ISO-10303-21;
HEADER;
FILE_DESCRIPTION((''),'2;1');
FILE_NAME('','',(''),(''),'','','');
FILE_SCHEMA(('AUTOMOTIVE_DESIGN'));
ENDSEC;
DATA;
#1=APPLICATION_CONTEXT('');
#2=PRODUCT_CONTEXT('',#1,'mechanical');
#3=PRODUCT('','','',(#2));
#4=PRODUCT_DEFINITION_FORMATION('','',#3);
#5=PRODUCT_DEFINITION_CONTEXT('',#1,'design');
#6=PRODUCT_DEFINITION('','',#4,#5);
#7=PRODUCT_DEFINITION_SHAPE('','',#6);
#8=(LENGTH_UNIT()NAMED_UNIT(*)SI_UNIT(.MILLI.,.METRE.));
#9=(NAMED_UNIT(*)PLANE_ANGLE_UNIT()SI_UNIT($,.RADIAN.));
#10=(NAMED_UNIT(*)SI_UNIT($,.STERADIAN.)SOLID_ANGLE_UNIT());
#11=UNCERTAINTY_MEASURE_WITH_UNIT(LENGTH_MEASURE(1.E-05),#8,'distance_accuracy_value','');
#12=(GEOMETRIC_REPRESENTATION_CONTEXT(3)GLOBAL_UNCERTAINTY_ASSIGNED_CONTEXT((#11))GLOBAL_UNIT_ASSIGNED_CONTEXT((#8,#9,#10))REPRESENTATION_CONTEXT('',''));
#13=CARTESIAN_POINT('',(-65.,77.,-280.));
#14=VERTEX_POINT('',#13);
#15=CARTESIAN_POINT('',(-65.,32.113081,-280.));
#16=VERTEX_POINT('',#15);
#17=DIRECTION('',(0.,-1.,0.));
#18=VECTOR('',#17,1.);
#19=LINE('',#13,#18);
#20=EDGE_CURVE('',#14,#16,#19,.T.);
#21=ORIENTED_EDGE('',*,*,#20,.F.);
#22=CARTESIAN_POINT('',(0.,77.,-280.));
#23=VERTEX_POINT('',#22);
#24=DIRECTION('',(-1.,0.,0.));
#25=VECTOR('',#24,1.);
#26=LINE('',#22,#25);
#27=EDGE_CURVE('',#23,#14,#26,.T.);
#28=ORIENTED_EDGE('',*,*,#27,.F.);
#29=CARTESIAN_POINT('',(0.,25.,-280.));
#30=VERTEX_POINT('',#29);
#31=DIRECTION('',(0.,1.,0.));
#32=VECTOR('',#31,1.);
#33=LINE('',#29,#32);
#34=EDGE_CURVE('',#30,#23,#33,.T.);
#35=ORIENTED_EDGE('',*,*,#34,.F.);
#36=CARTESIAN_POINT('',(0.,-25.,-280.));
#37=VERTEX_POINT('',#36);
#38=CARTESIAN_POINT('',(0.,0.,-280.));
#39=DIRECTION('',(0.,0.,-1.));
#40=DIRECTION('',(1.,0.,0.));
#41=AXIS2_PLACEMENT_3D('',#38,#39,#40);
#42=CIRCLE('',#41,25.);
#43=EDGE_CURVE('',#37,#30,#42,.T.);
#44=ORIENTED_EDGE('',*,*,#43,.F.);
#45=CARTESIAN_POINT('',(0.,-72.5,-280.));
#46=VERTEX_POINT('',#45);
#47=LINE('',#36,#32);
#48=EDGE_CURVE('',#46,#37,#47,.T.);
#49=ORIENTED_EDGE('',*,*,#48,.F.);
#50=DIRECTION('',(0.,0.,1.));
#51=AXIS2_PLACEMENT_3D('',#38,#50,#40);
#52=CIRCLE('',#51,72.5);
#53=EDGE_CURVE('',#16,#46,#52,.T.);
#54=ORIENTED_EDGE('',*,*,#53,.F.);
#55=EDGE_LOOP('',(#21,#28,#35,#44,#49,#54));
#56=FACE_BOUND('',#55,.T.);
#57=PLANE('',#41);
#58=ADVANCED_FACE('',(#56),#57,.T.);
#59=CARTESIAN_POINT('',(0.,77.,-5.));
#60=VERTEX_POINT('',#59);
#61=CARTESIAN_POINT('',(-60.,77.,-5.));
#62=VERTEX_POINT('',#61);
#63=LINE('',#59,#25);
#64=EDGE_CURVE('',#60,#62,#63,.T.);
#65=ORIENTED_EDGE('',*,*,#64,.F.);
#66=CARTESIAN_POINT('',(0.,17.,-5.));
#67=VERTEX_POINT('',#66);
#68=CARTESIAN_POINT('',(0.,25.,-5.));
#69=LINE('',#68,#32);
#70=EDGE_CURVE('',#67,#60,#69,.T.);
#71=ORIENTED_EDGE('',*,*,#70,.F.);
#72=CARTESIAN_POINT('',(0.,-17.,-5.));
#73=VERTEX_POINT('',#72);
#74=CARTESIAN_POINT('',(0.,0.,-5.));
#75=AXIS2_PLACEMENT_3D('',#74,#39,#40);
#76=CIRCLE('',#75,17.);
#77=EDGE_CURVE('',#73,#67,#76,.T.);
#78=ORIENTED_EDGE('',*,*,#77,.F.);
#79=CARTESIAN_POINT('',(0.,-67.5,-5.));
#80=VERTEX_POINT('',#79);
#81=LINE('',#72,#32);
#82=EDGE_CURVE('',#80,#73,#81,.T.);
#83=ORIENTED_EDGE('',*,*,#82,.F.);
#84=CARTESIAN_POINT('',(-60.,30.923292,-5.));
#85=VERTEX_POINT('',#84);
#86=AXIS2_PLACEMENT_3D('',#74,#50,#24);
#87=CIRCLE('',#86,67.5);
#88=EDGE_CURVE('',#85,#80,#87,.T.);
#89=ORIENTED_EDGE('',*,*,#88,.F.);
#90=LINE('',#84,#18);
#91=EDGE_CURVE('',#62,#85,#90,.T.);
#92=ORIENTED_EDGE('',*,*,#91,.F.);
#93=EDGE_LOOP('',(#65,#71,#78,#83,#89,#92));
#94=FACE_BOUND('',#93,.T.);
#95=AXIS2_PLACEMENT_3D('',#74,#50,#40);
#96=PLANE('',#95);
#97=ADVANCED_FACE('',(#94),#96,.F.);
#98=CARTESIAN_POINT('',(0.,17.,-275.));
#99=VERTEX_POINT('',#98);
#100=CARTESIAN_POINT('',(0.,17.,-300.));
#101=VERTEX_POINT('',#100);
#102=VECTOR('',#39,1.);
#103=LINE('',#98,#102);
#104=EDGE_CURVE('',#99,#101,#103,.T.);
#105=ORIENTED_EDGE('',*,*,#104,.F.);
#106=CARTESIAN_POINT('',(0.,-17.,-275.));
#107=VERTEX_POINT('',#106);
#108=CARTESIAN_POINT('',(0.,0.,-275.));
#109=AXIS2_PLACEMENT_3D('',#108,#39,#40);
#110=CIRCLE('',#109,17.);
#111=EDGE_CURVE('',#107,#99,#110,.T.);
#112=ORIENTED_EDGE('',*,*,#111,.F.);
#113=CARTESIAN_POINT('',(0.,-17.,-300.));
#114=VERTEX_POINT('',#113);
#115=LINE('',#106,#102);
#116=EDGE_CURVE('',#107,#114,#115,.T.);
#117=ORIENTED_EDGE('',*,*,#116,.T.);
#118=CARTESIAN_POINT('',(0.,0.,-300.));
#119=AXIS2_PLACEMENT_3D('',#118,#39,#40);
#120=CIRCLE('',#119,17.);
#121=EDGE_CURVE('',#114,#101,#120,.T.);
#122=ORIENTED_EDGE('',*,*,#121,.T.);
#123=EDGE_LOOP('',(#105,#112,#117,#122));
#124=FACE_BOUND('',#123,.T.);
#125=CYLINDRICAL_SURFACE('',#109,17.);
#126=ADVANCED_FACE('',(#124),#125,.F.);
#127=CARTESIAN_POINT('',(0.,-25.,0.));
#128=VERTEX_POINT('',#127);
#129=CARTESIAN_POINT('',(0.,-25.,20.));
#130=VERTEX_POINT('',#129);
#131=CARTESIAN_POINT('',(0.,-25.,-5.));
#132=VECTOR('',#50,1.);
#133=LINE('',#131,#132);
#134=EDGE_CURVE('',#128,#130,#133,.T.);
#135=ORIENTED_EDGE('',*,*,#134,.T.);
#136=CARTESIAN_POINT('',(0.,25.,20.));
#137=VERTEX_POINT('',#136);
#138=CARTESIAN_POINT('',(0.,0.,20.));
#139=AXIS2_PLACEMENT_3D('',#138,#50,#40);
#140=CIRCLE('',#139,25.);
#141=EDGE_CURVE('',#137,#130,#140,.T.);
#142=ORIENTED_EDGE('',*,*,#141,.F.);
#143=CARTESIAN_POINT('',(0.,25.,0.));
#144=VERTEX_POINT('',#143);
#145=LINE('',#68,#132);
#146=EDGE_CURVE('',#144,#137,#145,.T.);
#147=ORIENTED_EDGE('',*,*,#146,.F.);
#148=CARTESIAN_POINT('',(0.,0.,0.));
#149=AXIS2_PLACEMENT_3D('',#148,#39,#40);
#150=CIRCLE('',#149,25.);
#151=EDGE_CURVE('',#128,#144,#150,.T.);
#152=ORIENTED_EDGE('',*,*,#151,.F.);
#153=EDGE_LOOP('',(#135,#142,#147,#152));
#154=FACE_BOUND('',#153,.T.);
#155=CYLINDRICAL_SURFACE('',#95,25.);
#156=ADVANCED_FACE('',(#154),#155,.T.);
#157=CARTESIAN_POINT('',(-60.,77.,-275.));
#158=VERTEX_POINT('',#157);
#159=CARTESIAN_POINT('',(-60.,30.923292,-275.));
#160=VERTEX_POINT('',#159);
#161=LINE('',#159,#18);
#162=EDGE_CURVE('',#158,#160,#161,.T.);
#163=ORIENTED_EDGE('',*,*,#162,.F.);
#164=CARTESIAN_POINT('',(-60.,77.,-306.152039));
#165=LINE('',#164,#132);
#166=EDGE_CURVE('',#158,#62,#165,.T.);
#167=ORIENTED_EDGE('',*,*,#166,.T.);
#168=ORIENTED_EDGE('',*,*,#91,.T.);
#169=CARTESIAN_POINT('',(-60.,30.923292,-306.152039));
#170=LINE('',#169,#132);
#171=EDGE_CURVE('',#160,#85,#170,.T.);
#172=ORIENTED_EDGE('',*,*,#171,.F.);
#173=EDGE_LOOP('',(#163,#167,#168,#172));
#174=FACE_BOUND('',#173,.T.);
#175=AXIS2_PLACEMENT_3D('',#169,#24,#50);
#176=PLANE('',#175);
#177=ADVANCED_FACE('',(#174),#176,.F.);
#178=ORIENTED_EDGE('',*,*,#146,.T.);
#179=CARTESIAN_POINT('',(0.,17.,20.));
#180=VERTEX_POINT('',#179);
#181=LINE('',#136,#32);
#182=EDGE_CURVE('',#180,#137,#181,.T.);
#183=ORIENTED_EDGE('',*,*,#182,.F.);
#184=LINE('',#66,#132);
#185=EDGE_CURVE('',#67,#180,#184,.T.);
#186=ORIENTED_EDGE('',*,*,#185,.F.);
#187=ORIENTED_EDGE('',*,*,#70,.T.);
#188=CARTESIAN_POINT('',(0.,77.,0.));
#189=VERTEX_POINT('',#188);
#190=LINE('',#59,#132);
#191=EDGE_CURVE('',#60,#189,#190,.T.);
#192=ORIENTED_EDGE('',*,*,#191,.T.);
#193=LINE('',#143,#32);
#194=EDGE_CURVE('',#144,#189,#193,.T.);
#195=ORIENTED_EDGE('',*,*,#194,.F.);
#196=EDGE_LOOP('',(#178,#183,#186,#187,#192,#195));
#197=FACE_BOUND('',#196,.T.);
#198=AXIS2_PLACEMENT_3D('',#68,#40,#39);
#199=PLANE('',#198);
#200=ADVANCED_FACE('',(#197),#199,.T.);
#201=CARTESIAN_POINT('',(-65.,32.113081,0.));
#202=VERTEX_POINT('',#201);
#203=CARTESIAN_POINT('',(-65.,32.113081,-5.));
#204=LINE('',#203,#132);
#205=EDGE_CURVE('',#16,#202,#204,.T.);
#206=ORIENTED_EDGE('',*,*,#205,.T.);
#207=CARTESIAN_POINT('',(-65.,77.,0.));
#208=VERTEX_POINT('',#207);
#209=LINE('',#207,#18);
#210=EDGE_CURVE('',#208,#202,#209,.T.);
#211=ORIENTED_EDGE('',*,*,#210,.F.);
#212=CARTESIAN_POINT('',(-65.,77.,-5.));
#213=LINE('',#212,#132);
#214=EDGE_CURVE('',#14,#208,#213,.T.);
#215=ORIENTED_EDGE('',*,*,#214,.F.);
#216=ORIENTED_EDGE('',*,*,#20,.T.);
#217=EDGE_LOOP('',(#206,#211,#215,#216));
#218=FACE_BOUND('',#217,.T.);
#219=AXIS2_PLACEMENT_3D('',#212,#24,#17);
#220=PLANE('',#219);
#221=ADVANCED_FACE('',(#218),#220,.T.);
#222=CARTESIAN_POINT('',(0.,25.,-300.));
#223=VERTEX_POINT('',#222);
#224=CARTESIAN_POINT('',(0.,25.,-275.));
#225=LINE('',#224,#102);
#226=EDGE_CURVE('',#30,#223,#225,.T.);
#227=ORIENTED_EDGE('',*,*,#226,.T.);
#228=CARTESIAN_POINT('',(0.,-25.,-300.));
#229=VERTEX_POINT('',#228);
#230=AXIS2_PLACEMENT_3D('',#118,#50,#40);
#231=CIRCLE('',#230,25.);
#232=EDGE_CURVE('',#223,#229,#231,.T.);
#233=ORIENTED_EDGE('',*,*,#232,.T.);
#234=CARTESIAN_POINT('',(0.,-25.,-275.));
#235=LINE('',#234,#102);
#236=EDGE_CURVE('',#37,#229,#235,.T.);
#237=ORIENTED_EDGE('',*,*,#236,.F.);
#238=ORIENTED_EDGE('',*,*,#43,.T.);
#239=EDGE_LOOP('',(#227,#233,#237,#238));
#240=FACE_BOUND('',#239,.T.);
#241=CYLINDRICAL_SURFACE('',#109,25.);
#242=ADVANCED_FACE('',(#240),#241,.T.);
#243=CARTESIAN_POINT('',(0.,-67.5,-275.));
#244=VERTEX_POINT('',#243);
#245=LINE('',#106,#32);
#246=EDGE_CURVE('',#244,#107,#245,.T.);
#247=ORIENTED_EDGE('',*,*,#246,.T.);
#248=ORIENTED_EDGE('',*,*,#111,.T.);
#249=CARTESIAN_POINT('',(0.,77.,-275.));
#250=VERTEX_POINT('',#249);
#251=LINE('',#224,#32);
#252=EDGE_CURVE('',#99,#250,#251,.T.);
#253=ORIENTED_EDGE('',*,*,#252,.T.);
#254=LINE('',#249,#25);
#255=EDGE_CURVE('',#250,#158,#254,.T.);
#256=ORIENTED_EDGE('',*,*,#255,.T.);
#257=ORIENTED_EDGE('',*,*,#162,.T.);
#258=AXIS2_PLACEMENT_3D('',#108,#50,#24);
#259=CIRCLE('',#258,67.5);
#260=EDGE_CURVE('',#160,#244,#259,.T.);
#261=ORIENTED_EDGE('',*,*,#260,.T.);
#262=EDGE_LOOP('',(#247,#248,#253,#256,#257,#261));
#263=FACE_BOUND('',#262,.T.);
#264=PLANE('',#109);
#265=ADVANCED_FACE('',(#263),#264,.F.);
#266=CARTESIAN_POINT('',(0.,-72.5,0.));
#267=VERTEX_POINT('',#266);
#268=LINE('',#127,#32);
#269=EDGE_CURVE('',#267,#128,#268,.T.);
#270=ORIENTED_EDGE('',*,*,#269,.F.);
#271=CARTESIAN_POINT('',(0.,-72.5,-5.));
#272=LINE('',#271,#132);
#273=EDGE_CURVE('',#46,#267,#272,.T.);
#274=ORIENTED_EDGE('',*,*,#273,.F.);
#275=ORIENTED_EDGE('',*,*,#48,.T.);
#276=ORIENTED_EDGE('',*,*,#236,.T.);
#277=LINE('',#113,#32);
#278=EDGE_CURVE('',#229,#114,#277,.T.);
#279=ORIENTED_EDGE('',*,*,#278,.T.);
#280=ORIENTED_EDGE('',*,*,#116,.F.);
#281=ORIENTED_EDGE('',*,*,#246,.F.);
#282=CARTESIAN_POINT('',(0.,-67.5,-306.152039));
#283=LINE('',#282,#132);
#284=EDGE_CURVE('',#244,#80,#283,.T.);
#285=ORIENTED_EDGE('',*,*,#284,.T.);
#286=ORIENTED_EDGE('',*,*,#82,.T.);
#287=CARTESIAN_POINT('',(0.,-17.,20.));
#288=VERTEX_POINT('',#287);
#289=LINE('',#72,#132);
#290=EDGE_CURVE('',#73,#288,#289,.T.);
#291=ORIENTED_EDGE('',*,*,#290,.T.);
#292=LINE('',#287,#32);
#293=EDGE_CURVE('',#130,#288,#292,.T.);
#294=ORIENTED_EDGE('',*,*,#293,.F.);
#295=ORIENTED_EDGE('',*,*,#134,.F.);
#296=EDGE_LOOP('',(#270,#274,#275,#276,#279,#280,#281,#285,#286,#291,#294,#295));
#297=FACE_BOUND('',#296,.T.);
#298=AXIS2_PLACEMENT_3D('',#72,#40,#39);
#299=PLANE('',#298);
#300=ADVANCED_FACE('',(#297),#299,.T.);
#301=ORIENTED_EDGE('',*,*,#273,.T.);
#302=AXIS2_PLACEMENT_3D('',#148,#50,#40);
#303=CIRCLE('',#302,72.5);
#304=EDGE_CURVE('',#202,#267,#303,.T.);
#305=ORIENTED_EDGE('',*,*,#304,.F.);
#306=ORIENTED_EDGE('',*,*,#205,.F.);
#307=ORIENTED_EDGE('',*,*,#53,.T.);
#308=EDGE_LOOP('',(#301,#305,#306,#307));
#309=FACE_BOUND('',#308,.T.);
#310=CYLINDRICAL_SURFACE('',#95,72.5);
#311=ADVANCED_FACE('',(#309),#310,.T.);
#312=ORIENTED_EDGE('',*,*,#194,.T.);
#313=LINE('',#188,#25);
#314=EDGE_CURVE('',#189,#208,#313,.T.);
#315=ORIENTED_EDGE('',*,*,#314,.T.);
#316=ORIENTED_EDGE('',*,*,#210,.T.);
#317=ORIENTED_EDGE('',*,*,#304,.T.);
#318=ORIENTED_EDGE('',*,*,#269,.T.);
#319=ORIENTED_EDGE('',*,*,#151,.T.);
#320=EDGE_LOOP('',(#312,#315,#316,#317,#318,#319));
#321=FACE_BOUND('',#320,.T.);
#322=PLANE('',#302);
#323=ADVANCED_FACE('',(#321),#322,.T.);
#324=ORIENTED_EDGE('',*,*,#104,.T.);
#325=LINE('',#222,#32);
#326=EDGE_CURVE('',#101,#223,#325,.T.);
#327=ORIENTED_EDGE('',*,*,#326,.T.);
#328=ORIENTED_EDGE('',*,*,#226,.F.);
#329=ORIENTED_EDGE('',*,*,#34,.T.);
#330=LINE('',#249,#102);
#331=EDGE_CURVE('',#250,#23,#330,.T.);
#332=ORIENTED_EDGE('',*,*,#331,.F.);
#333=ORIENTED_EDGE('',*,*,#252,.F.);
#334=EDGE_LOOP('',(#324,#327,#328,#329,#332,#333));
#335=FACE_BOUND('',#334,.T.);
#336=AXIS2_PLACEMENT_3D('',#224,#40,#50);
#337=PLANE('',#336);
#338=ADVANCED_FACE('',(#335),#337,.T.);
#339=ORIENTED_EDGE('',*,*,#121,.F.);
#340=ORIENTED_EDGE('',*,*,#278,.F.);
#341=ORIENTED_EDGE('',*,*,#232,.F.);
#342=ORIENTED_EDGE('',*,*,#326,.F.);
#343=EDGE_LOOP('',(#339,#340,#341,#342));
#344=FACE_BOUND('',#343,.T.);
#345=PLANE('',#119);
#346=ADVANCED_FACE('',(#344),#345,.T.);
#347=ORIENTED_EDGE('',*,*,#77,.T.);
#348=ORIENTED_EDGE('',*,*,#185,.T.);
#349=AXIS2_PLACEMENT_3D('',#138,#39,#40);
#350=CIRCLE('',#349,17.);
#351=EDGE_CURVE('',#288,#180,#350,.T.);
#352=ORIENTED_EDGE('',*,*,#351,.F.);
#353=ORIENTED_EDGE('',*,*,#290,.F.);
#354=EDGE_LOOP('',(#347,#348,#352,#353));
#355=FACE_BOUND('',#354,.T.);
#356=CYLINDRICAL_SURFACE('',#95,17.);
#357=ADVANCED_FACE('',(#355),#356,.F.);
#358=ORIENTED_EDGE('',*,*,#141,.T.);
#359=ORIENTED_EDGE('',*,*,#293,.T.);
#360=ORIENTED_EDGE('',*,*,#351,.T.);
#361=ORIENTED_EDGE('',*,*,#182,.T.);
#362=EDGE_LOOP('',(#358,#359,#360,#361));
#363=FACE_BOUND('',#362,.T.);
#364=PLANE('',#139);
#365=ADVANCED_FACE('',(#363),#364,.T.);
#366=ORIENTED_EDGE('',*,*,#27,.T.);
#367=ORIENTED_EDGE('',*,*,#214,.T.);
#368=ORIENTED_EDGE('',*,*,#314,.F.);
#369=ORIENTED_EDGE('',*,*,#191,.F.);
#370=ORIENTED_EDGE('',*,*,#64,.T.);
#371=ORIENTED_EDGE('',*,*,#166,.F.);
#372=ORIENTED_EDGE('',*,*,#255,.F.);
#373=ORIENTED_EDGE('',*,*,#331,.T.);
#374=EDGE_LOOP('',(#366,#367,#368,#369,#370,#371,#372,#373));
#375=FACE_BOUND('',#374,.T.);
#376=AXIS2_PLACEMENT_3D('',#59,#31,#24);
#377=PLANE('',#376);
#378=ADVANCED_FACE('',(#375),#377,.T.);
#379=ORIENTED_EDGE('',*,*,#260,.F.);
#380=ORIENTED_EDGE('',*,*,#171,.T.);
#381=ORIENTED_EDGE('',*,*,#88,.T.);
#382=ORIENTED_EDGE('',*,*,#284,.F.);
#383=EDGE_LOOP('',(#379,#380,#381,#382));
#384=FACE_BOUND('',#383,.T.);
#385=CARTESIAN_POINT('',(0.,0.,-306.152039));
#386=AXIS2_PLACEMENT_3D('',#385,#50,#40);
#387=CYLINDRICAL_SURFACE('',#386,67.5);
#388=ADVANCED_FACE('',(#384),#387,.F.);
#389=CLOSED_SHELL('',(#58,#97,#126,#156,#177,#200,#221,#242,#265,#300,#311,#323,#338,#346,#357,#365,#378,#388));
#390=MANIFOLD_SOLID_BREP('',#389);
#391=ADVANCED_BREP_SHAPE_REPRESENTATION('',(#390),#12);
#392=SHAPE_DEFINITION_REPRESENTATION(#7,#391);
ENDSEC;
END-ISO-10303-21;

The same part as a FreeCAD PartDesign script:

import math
import FreeCAD as App
import Part
import Sketcher

doc = App.newDocument("Part")
body = doc.addObject("PartDesign::Body", "Body")

sketch1 = doc.addObject("Sketcher::SketchObject", "Sketch")
body.addObject(sketch1)
sketch1.AttachmentSupport = (doc.XY_Plane, [""])
sketch1.MapMode = "FlatFace"
sketch1.addGeometry(Part.LineSegment(App.Vector(0, 17, 0), App.Vector(0, 25, 0)), False)
sketch1.addGeometry(Part.ArcOfCircle(Part.Circle(App.Vector(0, 0, 0), App.Vector(0, 0, 1), 25), math.radians(90), math.radians(270)), False)
sketch1.addGeometry(Part.LineSegment(App.Vector(0, -25, 0), App.Vector(0, -17, 0)), False)
sketch1.addGeometry(Part.ArcOfCircle(Part.Circle(App.Vector(0, 0, 0), App.Vector(0, 0, 1), 17), math.radians(90), math.radians(270)), False)
sketch1.addConstraint(Sketcher.Constraint("Coincident", 0, 2, 1, 1))
sketch1.addConstraint(Sketcher.Constraint("Coincident", 1, 2, 2, 1))
sketch1.addConstraint(Sketcher.Constraint("Coincident", 2, 2, 3, 2))
sketch1.addConstraint(Sketcher.Constraint("Coincident", 3, 1, 0, 1))
sketch1.addConstraint(Sketcher.Constraint("Vertical", 0))
sketch1.addConstraint(Sketcher.Constraint("Vertical", 2))
sketch1.addConstraint(Sketcher.Constraint("Coincident", 1, 3, -1, 1))
sketch1.addConstraint(Sketcher.Constraint("Coincident", 3, 3, -1, 1))
sketch1.addConstraint(Sketcher.Constraint("PointOnObject", 0, 2, -2))
sketch1.addConstraint(Sketcher.Constraint("PointOnObject", 1, 2, -2))
sketch1.addConstraint(Sketcher.Constraint("Radius", 1, 25.0))
sketch1.addConstraint(Sketcher.Constraint("Radius", 3, 17.0))
pad1 = doc.addObject("PartDesign::Pad", "Pad")
body.addObject(pad1)
pad1.Profile = sketch1
pad1.Type = "TwoLengths"
pad1.Length = 20
pad1.Length2 = 5

sketch2 = doc.addObject("Sketcher::SketchObject", "Sketch001")
body.addObject(sketch2)
sketch2.AttachmentSupport = (doc.XY_Plane, [""])
sketch2.MapMode = "FlatFace"
sketch2.AttachmentOffset = App.Placement(App.Vector(0, 0, -5), App.Rotation())
sketch2.addGeometry(Part.LineSegment(App.Vector(0, 25, 0), App.Vector(0, 77, 0)), False)
sketch2.addGeometry(Part.LineSegment(App.Vector(0, 77, 0), App.Vector(-65, 77, 0)), False)
sketch2.addGeometry(Part.LineSegment(App.Vector(-65, 77, 0), App.Vector(-65, 32, 0)), False)
sketch2.addGeometry(Part.ArcOfCircle(Part.Circle(App.Vector(0, 0, 0), App.Vector(0, 0, 1), 72), math.radians(154), math.radians(270)), False)
sketch2.addGeometry(Part.LineSegment(App.Vector(0, -72, 0), App.Vector(0, -25, 0)), False)
sketch2.addGeometry(Part.ArcOfCircle(Part.Circle(App.Vector(0, 0, 0), App.Vector(0, 0, 1), 25), math.radians(90), math.radians(270)), False)
sketch2.addConstraint(Sketcher.Constraint("Coincident", 0, 2, 1, 1))
sketch2.addConstraint(Sketcher.Constraint("Coincident", 1, 2, 2, 1))
sketch2.addConstraint(Sketcher.Constraint("Coincident", 2, 2, 3, 1))
sketch2.addConstraint(Sketcher.Constraint("Coincident", 3, 2, 4, 1))
sketch2.addConstraint(Sketcher.Constraint("Coincident", 4, 2, 5, 2))
sketch2.addConstraint(Sketcher.Constraint("Coincident", 5, 1, 0, 1))
sketch2.addConstraint(Sketcher.Constraint("Vertical", 0))
sketch2.addConstraint(Sketcher.Constraint("Horizontal", 1))
sketch2.addConstraint(Sketcher.Constraint("Vertical", 2))
sketch2.addConstraint(Sketcher.Constraint("Vertical", 4))
sketch2.addConstraint(Sketcher.Constraint("Coincident", 3, 3, -1, 1))
sketch2.addConstraint(Sketcher.Constraint("Coincident", 5, 3, -1, 1))
sketch2.addConstraint(Sketcher.Constraint("PointOnObject", 0, 2, -2))
sketch2.addConstraint(Sketcher.Constraint("PointOnObject", 3, 2, -2))
sketch2.addConstraint(Sketcher.Constraint("Radius", 5, 25.0))
sketch2.addConstraint(Sketcher.Constraint("Radius", 3, 72.5))
sketch2.addConstraint(Sketcher.Constraint("DistanceX", 1, 2, 1, 1, 65.0))
sketch2.addConstraint(Sketcher.Constraint("DistanceY", 0, 1, 0, 2, 52.0))
pad2 = doc.addObject("PartDesign::Pad", "Pad001")
body.addObject(pad2)
pad2.Profile = sketch2
pad2.Length = 5

sketch3 = doc.addObject("Sketcher::SketchObject", "Sketch002")
body.addObject(sketch3)
sketch3.AttachmentSupport = (doc.XY_Plane, [""])
sketch3.MapMode = "FlatFace"
sketch3.AttachmentOffset = App.Placement(App.Vector(0, 0, -140), App.Rotation())
sketch3.addGeometry(Part.LineSegment(App.Vector(-60, 77, 0), App.Vector(-60, 31, 0)), False)
sketch3.addGeometry(Part.ArcOfCircle(Part.Circle(App.Vector(0, 0, 0), App.Vector(0, 0, 1), 68), math.radians(153), math.radians(270)), False)
sketch3.addGeometry(Part.LineSegment(App.Vector(0, -68, 0), App.Vector(0, -72, 0)), False)
sketch3.addGeometry(Part.ArcOfCircle(Part.Circle(App.Vector(0, 0, 0), App.Vector(0, 0, 1), 72), math.radians(154), math.radians(270)), False)
sketch3.addGeometry(Part.LineSegment(App.Vector(-65, 32, 0), App.Vector(-65, 77, 0)), False)
sketch3.addGeometry(Part.LineSegment(App.Vector(-65, 77, 0), App.Vector(-60, 77, 0)), False)
sketch3.addConstraint(Sketcher.Constraint("Coincident", 0, 2, 1, 1))
sketch3.addConstraint(Sketcher.Constraint("Coincident", 1, 2, 2, 1))
sketch3.addConstraint(Sketcher.Constraint("Coincident", 2, 2, 3, 2))
sketch3.addConstraint(Sketcher.Constraint("Coincident", 3, 1, 4, 1))
sketch3.addConstraint(Sketcher.Constraint("Coincident", 4, 2, 5, 1))
sketch3.addConstraint(Sketcher.Constraint("Coincident", 5, 2, 0, 1))
sketch3.addConstraint(Sketcher.Constraint("Vertical", 0))
sketch3.addConstraint(Sketcher.Constraint("Vertical", 2))
sketch3.addConstraint(Sketcher.Constraint("Vertical", 4))
sketch3.addConstraint(Sketcher.Constraint("Horizontal", 5))
sketch3.addConstraint(Sketcher.Constraint("Coincident", 1, 3, -1, 1))
sketch3.addConstraint(Sketcher.Constraint("Coincident", 3, 3, -1, 1))
sketch3.addConstraint(Sketcher.Constraint("PointOnObject", 1, 2, -2))
sketch3.addConstraint(Sketcher.Constraint("Equal", 5, 2))
sketch3.addConstraint(Sketcher.Constraint("Radius", 1, 67.5))
sketch3.addConstraint(Sketcher.Constraint("Radius", 3, 72.5))
sketch3.addConstraint(Sketcher.Constraint("DistanceX", 0, 2, -1, 1, 60.0))
sketch3.addConstraint(Sketcher.Constraint("DistanceY", -1, 1, 4, 2, 77.0))
pad3 = doc.addObject("PartDesign::Pad", "Pad002")
body.addObject(pad3)
pad3.Profile = sketch3
pad3.Length = 135
body2 = doc.addObject("PartDesign::Body", "Body001")
doc.recompute()

body2.BaseFeature = body
doc.recompute()

mirroring = doc.addObject("Part::Mirroring", "Mirroring")
mirroring.Source = body
mirroring.Base = App.Vector(0, 0, -140)
mirroring.Normal = App.Vector(0, 0, 1)
body3 = doc.addObject("PartDesign::Body", "Body002")
body3.BaseFeature = mirroring
boolean = doc.addObject("PartDesign::Boolean", "Boolean")
body2.addObject(boolean)
boolean.Type = "Fuse"
boolean.addObjects([body3])
doc.recompute()
mirroring.Visibility = False

doc.recompute()
